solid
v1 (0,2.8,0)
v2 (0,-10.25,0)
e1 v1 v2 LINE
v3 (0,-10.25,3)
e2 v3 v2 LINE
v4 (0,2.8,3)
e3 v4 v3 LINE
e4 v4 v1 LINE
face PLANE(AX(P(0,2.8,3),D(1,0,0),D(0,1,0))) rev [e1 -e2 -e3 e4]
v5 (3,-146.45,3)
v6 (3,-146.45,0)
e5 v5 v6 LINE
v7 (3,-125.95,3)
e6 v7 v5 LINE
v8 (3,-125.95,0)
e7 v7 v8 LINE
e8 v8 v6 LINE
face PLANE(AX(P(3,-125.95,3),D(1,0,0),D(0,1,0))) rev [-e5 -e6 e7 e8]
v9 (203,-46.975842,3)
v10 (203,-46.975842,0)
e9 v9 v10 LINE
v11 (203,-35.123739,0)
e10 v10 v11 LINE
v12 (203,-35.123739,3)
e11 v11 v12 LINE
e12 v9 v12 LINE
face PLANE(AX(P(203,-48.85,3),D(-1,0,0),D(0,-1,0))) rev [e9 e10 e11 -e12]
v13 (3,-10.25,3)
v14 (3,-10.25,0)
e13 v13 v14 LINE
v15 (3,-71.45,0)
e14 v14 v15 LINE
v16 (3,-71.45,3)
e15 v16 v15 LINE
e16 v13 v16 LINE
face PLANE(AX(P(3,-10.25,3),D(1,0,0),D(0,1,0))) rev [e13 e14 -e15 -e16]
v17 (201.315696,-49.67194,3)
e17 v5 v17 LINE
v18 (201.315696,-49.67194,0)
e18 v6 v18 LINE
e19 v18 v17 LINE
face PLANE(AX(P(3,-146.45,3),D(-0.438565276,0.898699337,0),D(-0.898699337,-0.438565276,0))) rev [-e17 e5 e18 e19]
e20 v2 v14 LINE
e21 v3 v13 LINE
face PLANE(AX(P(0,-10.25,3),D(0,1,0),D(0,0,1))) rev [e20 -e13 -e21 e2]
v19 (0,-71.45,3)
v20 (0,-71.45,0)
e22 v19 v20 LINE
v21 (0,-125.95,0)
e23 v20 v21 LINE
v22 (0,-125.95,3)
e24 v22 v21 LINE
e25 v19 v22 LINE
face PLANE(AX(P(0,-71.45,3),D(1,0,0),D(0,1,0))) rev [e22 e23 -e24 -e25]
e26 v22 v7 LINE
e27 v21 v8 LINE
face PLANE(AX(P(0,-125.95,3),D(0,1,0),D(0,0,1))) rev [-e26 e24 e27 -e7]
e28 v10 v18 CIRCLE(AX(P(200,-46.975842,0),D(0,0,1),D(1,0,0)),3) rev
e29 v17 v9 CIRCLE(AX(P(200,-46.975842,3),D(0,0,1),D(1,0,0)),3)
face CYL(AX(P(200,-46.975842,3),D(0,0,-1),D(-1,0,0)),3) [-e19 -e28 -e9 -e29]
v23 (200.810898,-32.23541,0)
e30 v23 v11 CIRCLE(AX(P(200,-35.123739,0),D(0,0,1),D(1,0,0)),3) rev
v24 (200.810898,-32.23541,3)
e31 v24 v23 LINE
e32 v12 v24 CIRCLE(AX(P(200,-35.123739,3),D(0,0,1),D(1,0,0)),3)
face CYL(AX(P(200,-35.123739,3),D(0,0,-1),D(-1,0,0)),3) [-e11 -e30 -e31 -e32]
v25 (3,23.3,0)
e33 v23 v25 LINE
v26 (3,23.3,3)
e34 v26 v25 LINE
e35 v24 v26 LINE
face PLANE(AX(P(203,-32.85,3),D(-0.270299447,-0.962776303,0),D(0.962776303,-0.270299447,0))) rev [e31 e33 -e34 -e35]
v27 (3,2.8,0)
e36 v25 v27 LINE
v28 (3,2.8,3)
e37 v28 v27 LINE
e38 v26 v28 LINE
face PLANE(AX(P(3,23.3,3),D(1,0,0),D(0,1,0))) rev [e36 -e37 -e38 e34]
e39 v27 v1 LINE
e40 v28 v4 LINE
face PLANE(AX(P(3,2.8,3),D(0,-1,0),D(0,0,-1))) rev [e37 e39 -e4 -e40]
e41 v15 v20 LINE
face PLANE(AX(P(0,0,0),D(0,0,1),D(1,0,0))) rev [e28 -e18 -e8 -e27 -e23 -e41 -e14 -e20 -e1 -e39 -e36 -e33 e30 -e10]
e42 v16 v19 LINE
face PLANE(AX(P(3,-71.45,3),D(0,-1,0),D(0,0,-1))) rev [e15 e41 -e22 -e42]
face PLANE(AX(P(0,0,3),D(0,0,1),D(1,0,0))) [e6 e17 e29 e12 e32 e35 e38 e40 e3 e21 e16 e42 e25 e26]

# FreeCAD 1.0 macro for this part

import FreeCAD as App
import Part
import Sketcher

V = App.Vector


def edges_at(feature, points):
    """Names of the edges that pass closest to the given points."""
    edges = feature.Shape.Edges
    near = lambda p: min(range(len(edges)), key=lambda i: edges[i].distToShape(Part.Vertex(*p))[0])
    return sorted({f"Edge{near(p) + 1}" for p in points})


def add_polygon(sketch, points):
    """Adds a closed chain of lines whose ends are joined by coincident constraints."""
    first, n = sketch.GeometryCount, len(points)
    for a, b in zip(points, points[1:] + points[:1]):
        sketch.addGeometry(Part.LineSegment(App.Vector(*a, 0), App.Vector(*b, 0)), False)
    for i in range(n):
        sketch.addConstraint(Sketcher.Constraint("Coincident", first + i, 2, first + (i + 1) % n, 1))

doc = App.newDocument("Part")
body = doc.addObject("PartDesign::Body", "Body")

sketch1 = body.newObject("Sketcher::SketchObject", "Sketch")
sketch1.AttachmentSupport = (doc.getObject("XY_Plane"), [""])
sketch1.MapMode = "FlatFace"
add_polygon(sketch1, [(203, -32.9), (3, 23.3), (3, 2.8), (0, 2.8), (0, -10.2), (3, -10.2), (3, -71.5), (0, -71.5), (0, -126), (3, -126), (3, -146.4), (203, -48.9)])
sketch1.addConstraint([
    Sketcher.Constraint("Vertical", 1),
    Sketcher.Constraint("Horizontal", 2),
    Sketcher.Constraint("Vertical", 3),
    Sketcher.Constraint("Horizontal", 4),
    Sketcher.Constraint("Vertical", 5),
    Sketcher.Constraint("Horizontal", 6),
    Sketcher.Constraint("Vertical", 7),
    Sketcher.Constraint("Horizontal", 8),
    Sketcher.Constraint("Vertical", 9),
    Sketcher.Constraint("Vertical", 11),
    Sketcher.Constraint("PointOnObject", 2, 2, -2),
    Sketcher.Constraint("PointOnObject", 6, 2, -2),
    Sketcher.Constraint("Vertical", 1, 2, 4, 2),
    Sketcher.Constraint("Vertical", 5, 2, 8, 2),
    Sketcher.Constraint("Equal", 1, 9),
    Sketcher.Constraint("DistanceX", 2, 2, 2, 1, 3.0),
    Sketcher.Constraint("DistanceY", 11, 1, 11, 2, 16.0),
    Sketcher.Constraint("DistanceY", 1, 2, 1, 1, 20.5),
    Sketcher.Constraint("DistanceY", 5, 2, 5, 1, 61.2),
    Sketcher.Constraint("DistanceY", 7, 2, 7, 1, 54.5),
    Sketcher.Constraint("DistanceX", -1, 1, 10, 2, 203.0),
    Sketcher.Constraint("DistanceY", 3, 2, 3, 1, 13.05),
    Sketcher.Constraint("DistanceY", -1, 1, 0, 2, 23.3),
    Sketcher.Constraint("DistanceY", 5, 2, 10, 2, 22.6),
])
pad1 = body.newObject("PartDesign::Pad", "Pad")
pad1.Profile = sketch1
pad1.Length = 3
doc.recompute()

fillet = body.newObject("PartDesign::Fillet", "Fillet")
fillet.Base = (pad1, edges_at(pad1, [(203, -48.85, 1.5), (203, -32.85, 1.5)]))
fillet.Radius = 3

doc.recompute()
